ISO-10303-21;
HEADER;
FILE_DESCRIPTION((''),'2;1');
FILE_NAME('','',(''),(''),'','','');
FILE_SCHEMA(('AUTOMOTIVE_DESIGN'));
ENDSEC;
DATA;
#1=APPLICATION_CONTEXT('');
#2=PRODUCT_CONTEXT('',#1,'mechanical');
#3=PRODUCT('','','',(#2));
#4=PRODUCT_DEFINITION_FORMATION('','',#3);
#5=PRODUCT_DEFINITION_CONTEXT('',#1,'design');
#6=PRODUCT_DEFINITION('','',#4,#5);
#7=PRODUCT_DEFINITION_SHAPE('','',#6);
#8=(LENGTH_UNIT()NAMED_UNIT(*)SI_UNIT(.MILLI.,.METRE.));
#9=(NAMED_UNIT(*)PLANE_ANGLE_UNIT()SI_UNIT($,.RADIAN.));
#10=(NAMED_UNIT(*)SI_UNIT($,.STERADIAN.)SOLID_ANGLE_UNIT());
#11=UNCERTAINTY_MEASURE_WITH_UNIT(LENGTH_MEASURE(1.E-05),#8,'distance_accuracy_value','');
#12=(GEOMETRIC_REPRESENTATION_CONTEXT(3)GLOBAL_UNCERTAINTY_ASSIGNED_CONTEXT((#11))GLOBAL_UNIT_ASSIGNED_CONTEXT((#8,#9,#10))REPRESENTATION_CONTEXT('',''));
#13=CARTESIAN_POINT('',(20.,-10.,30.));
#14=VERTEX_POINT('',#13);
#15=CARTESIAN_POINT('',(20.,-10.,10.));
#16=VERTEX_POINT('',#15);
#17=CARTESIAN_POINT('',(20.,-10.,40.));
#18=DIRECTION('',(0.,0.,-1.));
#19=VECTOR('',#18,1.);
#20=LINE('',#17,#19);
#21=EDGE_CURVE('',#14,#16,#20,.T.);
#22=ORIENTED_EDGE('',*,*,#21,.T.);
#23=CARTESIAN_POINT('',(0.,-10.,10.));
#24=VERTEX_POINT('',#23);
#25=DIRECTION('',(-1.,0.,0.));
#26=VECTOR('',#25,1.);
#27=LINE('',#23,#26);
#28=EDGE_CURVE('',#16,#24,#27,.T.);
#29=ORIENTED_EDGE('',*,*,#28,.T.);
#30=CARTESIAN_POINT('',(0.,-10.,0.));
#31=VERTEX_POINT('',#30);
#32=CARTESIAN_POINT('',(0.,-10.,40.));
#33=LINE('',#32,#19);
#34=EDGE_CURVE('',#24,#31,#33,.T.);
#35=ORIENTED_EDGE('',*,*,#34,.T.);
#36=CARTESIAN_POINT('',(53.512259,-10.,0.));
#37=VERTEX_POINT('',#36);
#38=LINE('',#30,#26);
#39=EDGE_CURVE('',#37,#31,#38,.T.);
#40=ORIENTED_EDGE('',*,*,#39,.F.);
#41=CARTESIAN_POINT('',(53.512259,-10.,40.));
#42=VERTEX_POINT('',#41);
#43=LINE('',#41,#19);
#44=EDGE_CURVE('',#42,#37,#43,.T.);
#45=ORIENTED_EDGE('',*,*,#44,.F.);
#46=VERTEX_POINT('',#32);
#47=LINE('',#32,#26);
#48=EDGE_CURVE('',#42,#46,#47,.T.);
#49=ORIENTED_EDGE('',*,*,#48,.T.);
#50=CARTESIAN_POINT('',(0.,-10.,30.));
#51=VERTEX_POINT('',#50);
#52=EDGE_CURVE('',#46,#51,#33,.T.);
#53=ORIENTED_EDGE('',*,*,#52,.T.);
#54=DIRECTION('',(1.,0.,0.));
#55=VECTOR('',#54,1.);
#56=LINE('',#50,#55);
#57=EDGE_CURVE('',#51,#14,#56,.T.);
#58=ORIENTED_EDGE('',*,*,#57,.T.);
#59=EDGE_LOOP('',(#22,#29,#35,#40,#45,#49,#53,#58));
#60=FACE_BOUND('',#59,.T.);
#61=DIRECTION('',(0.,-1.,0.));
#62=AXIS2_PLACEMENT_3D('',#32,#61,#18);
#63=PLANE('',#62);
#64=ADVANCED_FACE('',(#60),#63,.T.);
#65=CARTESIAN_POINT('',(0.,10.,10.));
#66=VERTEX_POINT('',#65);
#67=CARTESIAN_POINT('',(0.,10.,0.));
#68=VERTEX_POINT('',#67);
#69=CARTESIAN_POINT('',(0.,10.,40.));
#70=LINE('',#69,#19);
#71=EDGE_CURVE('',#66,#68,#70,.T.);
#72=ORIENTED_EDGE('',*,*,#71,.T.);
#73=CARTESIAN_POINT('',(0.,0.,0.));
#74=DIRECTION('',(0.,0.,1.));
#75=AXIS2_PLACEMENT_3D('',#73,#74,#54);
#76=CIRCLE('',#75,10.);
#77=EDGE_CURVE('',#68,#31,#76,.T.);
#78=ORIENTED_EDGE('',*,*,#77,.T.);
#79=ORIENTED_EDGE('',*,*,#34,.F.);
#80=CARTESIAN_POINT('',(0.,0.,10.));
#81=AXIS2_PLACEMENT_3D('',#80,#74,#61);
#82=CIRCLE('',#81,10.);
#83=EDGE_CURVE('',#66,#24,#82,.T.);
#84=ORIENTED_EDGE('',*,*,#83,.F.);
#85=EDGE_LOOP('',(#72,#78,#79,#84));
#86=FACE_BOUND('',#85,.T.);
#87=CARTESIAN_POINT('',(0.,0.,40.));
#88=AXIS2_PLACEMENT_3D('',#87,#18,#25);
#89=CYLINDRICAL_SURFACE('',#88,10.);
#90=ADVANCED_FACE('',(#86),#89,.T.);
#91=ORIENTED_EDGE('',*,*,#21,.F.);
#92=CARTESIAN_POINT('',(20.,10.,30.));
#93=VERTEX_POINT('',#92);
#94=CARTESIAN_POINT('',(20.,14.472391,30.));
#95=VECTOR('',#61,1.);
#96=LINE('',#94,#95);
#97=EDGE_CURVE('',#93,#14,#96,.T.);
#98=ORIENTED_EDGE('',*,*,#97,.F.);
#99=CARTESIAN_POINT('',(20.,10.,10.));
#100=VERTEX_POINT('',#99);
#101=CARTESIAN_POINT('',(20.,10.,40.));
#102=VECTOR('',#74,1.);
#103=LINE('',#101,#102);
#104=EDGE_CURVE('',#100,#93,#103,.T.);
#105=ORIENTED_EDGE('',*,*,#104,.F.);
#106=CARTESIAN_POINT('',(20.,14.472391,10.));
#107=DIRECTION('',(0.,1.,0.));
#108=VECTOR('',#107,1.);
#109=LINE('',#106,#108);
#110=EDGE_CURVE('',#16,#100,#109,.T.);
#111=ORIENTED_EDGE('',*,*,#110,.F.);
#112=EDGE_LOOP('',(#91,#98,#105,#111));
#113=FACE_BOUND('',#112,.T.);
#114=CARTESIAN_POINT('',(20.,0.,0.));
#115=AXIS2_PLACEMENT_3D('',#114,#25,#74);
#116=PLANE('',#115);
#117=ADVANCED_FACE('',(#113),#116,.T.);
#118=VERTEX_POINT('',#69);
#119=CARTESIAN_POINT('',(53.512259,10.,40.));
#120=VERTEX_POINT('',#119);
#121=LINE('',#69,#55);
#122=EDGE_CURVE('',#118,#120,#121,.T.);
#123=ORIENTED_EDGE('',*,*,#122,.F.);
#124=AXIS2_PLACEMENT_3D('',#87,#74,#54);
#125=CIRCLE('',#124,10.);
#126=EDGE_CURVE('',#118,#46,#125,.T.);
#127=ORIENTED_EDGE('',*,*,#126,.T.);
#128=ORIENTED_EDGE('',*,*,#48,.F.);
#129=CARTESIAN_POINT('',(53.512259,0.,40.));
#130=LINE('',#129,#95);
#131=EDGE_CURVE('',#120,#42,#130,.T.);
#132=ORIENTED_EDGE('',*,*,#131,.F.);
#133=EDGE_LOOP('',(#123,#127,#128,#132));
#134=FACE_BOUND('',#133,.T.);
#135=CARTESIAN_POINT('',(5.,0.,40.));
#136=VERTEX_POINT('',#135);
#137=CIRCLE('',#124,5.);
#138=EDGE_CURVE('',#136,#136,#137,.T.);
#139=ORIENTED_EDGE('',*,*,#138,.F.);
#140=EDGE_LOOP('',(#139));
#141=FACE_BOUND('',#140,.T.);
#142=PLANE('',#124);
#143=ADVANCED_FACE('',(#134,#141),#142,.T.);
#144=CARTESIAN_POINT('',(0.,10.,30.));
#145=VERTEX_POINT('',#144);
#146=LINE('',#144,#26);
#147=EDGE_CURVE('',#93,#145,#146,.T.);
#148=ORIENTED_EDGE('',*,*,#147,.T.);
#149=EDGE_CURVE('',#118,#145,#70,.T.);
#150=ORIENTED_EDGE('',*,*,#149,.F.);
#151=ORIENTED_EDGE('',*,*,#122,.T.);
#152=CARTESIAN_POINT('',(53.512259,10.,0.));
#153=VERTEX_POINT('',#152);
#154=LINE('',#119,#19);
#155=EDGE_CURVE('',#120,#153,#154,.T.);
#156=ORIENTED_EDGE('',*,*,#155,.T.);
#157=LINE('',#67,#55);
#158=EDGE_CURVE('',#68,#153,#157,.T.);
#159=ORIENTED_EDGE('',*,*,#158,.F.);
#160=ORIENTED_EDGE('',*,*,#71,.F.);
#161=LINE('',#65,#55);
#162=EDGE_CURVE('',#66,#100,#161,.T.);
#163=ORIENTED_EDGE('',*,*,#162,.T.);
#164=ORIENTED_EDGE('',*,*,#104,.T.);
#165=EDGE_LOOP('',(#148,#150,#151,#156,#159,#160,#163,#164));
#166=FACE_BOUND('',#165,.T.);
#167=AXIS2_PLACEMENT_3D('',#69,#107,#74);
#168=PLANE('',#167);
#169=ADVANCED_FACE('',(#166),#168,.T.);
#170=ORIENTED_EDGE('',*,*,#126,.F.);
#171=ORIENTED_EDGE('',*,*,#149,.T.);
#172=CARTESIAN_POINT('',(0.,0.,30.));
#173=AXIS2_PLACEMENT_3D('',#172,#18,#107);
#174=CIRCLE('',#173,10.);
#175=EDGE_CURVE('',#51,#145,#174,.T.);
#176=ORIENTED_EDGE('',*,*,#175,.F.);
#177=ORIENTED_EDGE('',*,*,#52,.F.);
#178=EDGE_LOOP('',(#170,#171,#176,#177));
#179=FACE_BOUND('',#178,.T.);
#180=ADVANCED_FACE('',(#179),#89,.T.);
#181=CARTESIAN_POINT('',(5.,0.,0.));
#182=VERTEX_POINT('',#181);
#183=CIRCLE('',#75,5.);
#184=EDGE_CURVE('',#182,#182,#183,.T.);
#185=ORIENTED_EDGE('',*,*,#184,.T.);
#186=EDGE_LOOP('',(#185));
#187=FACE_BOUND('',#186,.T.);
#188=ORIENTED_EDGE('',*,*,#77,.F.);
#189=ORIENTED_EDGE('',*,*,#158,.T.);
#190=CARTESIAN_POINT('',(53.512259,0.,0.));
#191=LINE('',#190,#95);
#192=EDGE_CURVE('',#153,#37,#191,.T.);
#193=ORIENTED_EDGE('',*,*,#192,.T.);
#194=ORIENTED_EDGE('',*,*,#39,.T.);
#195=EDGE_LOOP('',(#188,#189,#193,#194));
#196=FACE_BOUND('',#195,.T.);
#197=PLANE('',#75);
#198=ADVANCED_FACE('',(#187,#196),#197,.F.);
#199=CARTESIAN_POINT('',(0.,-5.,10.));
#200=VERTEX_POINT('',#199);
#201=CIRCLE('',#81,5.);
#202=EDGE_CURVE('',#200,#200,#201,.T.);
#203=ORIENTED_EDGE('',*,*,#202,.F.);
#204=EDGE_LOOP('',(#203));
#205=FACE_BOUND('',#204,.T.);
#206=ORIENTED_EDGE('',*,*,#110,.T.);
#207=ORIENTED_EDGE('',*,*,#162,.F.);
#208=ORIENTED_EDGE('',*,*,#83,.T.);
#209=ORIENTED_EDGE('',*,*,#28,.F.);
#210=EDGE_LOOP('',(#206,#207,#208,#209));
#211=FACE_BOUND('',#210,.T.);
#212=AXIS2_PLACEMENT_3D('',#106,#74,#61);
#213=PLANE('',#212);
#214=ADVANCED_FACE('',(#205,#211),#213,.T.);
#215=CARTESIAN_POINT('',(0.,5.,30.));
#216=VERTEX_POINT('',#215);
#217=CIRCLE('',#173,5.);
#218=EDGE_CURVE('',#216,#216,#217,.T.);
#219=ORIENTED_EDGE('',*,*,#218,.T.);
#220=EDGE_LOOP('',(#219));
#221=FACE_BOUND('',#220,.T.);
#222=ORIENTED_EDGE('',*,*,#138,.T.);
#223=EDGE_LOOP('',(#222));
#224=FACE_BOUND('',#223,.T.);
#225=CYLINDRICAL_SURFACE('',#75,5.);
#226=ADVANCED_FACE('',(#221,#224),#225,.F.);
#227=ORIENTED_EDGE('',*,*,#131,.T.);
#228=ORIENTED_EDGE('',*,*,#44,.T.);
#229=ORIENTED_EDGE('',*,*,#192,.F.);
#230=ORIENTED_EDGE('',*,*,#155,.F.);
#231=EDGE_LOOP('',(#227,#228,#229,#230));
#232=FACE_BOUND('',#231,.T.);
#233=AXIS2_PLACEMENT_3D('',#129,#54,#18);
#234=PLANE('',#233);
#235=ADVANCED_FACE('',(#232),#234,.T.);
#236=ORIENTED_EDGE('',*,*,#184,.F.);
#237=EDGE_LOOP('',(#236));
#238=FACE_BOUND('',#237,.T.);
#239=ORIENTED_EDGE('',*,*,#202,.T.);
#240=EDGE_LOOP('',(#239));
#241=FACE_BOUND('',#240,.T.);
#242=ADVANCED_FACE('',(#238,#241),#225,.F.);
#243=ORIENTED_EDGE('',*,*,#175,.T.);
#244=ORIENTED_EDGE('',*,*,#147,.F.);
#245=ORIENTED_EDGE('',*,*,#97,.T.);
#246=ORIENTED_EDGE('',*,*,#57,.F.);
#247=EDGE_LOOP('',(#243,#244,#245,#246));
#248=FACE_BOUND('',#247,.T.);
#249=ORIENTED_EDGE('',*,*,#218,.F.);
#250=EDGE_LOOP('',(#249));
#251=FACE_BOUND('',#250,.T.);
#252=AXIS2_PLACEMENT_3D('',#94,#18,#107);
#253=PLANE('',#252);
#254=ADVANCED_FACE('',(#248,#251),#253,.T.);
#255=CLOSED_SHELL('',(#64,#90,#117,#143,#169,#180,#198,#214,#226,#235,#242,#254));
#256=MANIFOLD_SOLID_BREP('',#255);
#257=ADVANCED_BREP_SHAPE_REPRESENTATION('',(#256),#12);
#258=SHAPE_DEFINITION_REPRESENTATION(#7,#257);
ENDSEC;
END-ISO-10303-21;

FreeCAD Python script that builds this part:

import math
import FreeCAD as App
import Part
import Sketcher
from FreeCAD import Vector

doc = App.newDocument("Part")
body = doc.addObject("PartDesign::Body", "Body")

# Sketch on XY plane
sketch1 = doc.addObject("Sketcher::SketchObject", "Sketch")
body.addObject(sketch1)
sketch1.AttachmentSupport = (doc.XY_Plane, [""])
sketch1.MapMode = "FlatFace"
sketch1.addGeometry([
    Part.ArcOfCircle(Part.Circle(Vector(0, 0, 0), Vector(0, 0, 1), 10), math.radians(90), math.radians(270)),
    Part.LineSegment(Vector(0, -10, 0), Vector(54, -10, 0)),
    Part.LineSegment(Vector(54, -10, 0), Vector(54, 10, 0)),
    Part.LineSegment(Vector(54, 10, 0), Vector(0, 10, 0)),
], False)
sketch1.addConstraint([
    Sketcher.Constraint("Tangent", 0, 2, 1, 1),
    Sketcher.Constraint("Coincident", 1, 2, 2, 1),
    Sketcher.Constraint("Coincident", 2, 2, 3, 1),
    Sketcher.Constraint("Tangent", 3, 2, 0, 1),
    Sketcher.Constraint("Horizontal", 1),
    Sketcher.Constraint("Vertical", 2),
    Sketcher.Constraint("Horizontal", 3),
    Sketcher.Constraint("Coincident", 0, 3, -1, 1),
    Sketcher.Constraint("Radius", 0, 10.0),
    Sketcher.Constraint("DistanceX", 1, 1, 1, 2, 53.512259),
])
pad1 = doc.addObject("PartDesign::Pad", "Pad")
body.addObject(pad1)
pad1.Profile = sketch1
pad1.Length = 40

# Sketch on YZ plane
sketch2 = doc.addObject("Sketcher::SketchObject", "Sketch001")
body.addObject(sketch2)
sketch2.AttachmentSupport = (doc.YZ_Plane, [""])
sketch2.MapMode = "FlatFace"
sketch2.addGeometry([
    Part.LineSegment(Vector(14, 30, 0), Vector(-14, 30, 0)),
    Part.LineSegment(Vector(-14, 30, 0), Vector(-14, 10, 0)),
    Part.LineSegment(Vector(-14, 10, 0), Vector(14, 10, 0)),
    Part.LineSegment(Vector(14, 10, 0), Vector(14, 30, 0)),
], False)
sketch2.addConstraint([
    Sketcher.Constraint("Coincident", 0, 2, 1, 1),
    Sketcher.Constraint("Coincident", 1, 2, 2, 1),
    Sketcher.Constraint("Coincident", 2, 2, 3, 1),
    Sketcher.Constraint("Coincident", 3, 2, 0, 1),
    Sketcher.Constraint("Horizontal", 0),
    Sketcher.Constraint("Vertical", 1),
    Sketcher.Constraint("Horizontal", 2),
    Sketcher.Constraint("Vertical", 3),
    Sketcher.Constraint("DistanceY", 1, 2, 1, 1, 20.0),
    Sketcher.Constraint("DistanceY", -1, 1, 0, 2, 30.0),
    Sketcher.Constraint("DistanceX", 0, 2, 0, 1, 28.944782),
    Sketcher.Constraint("DistanceX", 0, 2, -1, 1, 14.472391),
])
pocket1 = doc.addObject("PartDesign::Pocket", "Pocket")
body.addObject(pocket1)
pocket1.Profile = sketch2
pocket1.Type = "TwoLengths"
pocket1.Length = 20
pocket1.Length2 = 40
pocket1.Reversed = True

# Sketch on XY plane
sketch3 = doc.addObject("Sketcher::SketchObject", "Sketch002")
body.addObject(sketch3)
sketch3.AttachmentSupport = (doc.XY_Plane, [""])
sketch3.MapMode = "FlatFace"
sketch3.AttachmentOffset = App.Placement(Vector(0, 0, 40), App.Rotation())
sketch3.addGeometry(Part.Circle(Vector(0, 0, 0), Vector(0, 0, 1), 5), False)
sketch3.addConstraint([
    Sketcher.Constraint("Coincident", 0, 3, -1, 1),
    Sketcher.Constraint("Diameter", 0, 10.0),
])
pocket2 = doc.addObject("PartDesign::Pocket", "Pocket001")
body.addObject(pocket2)
pocket2.Profile = sketch3
pocket2.Length = 40

doc.recompute()
